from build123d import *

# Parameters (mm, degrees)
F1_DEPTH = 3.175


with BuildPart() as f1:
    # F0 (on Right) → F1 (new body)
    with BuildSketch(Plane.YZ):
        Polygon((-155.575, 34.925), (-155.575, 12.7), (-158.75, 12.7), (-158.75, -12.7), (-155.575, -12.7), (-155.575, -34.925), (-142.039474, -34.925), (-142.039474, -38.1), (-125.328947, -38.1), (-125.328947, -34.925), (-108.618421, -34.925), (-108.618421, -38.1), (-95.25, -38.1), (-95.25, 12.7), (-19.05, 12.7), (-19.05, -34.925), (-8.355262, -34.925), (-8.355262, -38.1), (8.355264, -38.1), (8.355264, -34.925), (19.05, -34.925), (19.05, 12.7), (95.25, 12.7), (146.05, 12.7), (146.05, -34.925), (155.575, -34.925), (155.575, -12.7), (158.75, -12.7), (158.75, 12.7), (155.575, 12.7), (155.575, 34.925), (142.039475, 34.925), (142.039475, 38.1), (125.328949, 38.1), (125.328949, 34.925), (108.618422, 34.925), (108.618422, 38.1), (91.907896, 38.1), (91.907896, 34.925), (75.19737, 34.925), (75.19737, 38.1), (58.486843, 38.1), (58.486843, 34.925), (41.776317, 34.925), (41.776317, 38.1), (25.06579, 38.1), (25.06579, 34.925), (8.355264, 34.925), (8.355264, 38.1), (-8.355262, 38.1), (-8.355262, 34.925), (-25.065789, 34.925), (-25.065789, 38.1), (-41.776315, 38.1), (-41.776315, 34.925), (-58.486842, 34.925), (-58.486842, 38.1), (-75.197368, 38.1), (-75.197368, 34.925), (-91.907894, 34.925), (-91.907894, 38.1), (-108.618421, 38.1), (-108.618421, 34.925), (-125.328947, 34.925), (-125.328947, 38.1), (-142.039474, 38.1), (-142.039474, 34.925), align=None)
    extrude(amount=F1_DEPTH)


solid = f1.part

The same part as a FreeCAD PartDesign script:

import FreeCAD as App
import Part
import Sketcher

V = App.Vector
Q = App.Units.Quantity


def add_polygon(sketch, points):
    """Adds a closed chain of lines whose ends are joined by coincident constraints."""
    first, n = sketch.GeometryCount, len(points)
    for a, b in zip(points, points[1:] + points[:1]):
        sketch.addGeometry(Part.LineSegment(App.Vector(*a, 0), App.Vector(*b, 0)), False)
    for i in range(n):
        sketch.addConstraint(Sketcher.Constraint("Coincident", first + i, 2, first + (i + 1) % n, 1))

doc = App.newDocument("Part")
body = doc.addObject("PartDesign::Body", "Body")

# Sketch on YZ plane
sketch1 = body.newObject("Sketcher::SketchObject", "Sketch")
sketch1.AttachmentSupport = (doc.getObject("YZ_Plane"), [""])
sketch1.MapMode = "FlatFace"
add_polygon(sketch1, [(-155.575, 34.925), (-155.575, 12.7), (-158.75, 12.7), (-158.75, -12.7), (-155.575, -12.7), (-155.575, -34.925), (-142.039474, -34.925), (-142.039474, -38.1), (-125.328947, -38.1), (-125.328947, -34.925), (-108.618421, -34.925), (-108.618421, -38.1), (-95.25, -38.1), (-95.25, 12.7), (-19.05, 12.7), (-19.05, -34.925), (-8.355262, -34.925), (-8.355262, -38.1), (8.355264, -38.1), (8.355264, -34.925), (19.05, -34.925), (19.05, 12.7), (146.05, 12.7), (146.05, -34.925), (155.575, -34.925), (155.575, -12.7), (158.75, -12.7), (158.75, 12.7), (155.575, 12.7), (155.575, 34.925), (142.039475, 34.925), (142.039475, 38.1), (125.328949, 38.1), (125.328949, 34.925), (108.618422, 34.925), (108.618422, 38.1), (91.907896, 38.1), (91.907896, 34.925), (75.19737, 34.925), (75.19737, 38.1), (58.486843, 38.1), (58.486843, 34.925), (41.776317, 34.925), (41.776317, 38.1), (25.06579, 38.1), (25.06579, 34.925), (8.355264, 34.925), (8.355264, 38.1), (-8.355262, 38.1), (-8.355262, 34.925), (-25.065789, 34.925), (-25.065789, 38.1), (-41.776315, 38.1), (-41.776315, 34.925), (-58.486842, 34.925), (-58.486842, 38.1), (-75.197368, 38.1), (-75.197368, 34.925), (-91.907894, 34.925), (-91.907894, 38.1), (-108.618421, 38.1), (-108.618421, 34.925), (-125.328947, 34.925), (-125.328947, 38.1), (-142.039474, 38.1), (-142.039474, 34.925)])  # lines 0-65
sketch1.addConstraint(Sketcher.Constraint("Vertical", 0))
sketch1.addConstraint(Sketcher.Constraint("Horizontal", 1))
sketch1.addConstraint(Sketcher.Constraint("Vertical", 2))
sketch1.addConstraint(Sketcher.Constraint("Horizontal", 3))
sketch1.addConstraint(Sketcher.Constraint("Vertical", 4))
sketch1.addConstraint(Sketcher.Constraint("Horizontal", 5))
sketch1.addConstraint(Sketcher.Constraint("Vertical", 6))
sketch1.addConstraint(Sketcher.Constraint("Horizontal", 7))
sketch1.addConstraint(Sketcher.Constraint("Vertical", 8))
sketch1.addConstraint(Sketcher.Constraint("Horizontal", 9))
sketch1.addConstraint(Sketcher.Constraint("Vertical", 10))
sketch1.addConstraint(Sketcher.Constraint("Horizontal", 11))
sketch1.addConstraint(Sketcher.Constraint("Vertical", 12))
sketch1.addConstraint(Sketcher.Constraint("Horizontal", 13))
sketch1.addConstraint(Sketcher.Constraint("Vertical", 14))
sketch1.addConstraint(Sketcher.Constraint("Horizontal", 15))
sketch1.addConstraint(Sketcher.Constraint("Vertical", 16))
sketch1.addConstraint(Sketcher.Constraint("Horizontal", 17))
sketch1.addConstraint(Sketcher.Constraint("Vertical", 18))
sketch1.addConstraint(Sketcher.Constraint("Horizontal", 19))
sketch1.addConstraint(Sketcher.Constraint("Vertical", 20))
sketch1.addConstraint(Sketcher.Constraint("Horizontal", 21))
sketch1.addConstraint(Sketcher.Constraint("Vertical", 22))
sketch1.addConstraint(Sketcher.Constraint("Horizontal", 23))
sketch1.addConstraint(Sketcher.Constraint("Vertical", 24))
sketch1.addConstraint(Sketcher.Constraint("Horizontal", 25))
sketch1.addConstraint(Sketcher.Constraint("Vertical", 26))
sketch1.addConstraint(Sketcher.Constraint("Horizontal", 27))
sketch1.addConstraint(Sketcher.Constraint("Vertical", 28))
sketch1.addConstraint(Sketcher.Constraint("Horizontal", 29))
sketch1.addConstraint(Sketcher.Constraint("Vertical", 30))
sketch1.addConstraint(Sketcher.Constraint("Horizontal", 31))
sketch1.addConstraint(Sketcher.Constraint("Vertical", 32))
sketch1.addConstraint(Sketcher.Constraint("Horizontal", 33))
sketch1.addConstraint(Sketcher.Constraint("Vertical", 34))
sketch1.addConstraint(Sketcher.Constraint("Horizontal", 35))
sketch1.addConstraint(Sketcher.Constraint("Vertical", 36))
sketch1.addConstraint(Sketcher.Constraint("Horizontal", 37))
sketch1.addConstraint(Sketcher.Constraint("Vertical", 38))
sketch1.addConstraint(Sketcher.Constraint("Horizontal", 39))
sketch1.addConstraint(Sketcher.Constraint("Vertical", 40))
sketch1.addConstraint(Sketcher.Constraint("Horizontal", 41))
sketch1.addConstraint(Sketcher.Constraint("Vertical", 42))
sketch1.addConstraint(Sketcher.Constraint("Horizontal", 43))
sketch1.addConstraint(Sketcher.Constraint("Vertical", 44))
sketch1.addConstraint(Sketcher.Constraint("Horizontal", 45))
sketch1.addConstraint(Sketcher.Constraint("Vertical", 46))
sketch1.addConstraint(Sketcher.Constraint("Horizontal", 47))
sketch1.addConstraint(Sketcher.Constraint("Vertical", 48))
sketch1.addConstraint(Sketcher.Constraint("Horizontal", 49))
sketch1.addConstraint(Sketcher.Constraint("Vertical", 50))
sketch1.addConstraint(Sketcher.Constraint("Horizontal", 51))
sketch1.addConstraint(Sketcher.Constraint("Vertical", 52))
sketch1.addConstraint(Sketcher.Constraint("Horizontal", 53))
sketch1.addConstraint(Sketcher.Constraint("Vertical", 54))
sketch1.addConstraint(Sketcher.Constraint("Horizontal", 55))
sketch1.addConstraint(Sketcher.Constraint("Vertical", 56))
sketch1.addConstraint(Sketcher.Constraint("Horizontal", 57))
sketch1.addConstraint(Sketcher.Constraint("Vertical", 58))
sketch1.addConstraint(Sketcher.Constraint("Horizontal", 59))
sketch1.addConstraint(Sketcher.Constraint("Vertical", 60))
sketch1.addConstraint(Sketcher.Constraint("Horizontal", 61))
sketch1.addConstraint(Sketcher.Constraint("Vertical", 62))
sketch1.addConstraint(Sketcher.Constraint("Horizontal", 63))
sketch1.addConstraint(Sketcher.Constraint("Vertical", 64))
sketch1.addConstraint(Sketcher.Constraint("Horizontal", 65))
sketch1.addConstraint(Sketcher.Constraint("Symmetric", 0, 2, 24, 2, -1, 1))
sketch1.addConstraint(Sketcher.Constraint("Symmetric", 2, 2, 26, 2, -1, 1))
sketch1.addConstraint(Sketcher.Constraint("Symmetric", 4, 2, 28, 2, -1, 1))
sketch1.addConstraint(Sketcher.Constraint("Symmetric", 6, 2, 30, 2, -1, 1))
sketch1.addConstraint(Sketcher.Constraint("Symmetric", 8, 2, 32, 2, -1, 1))
sketch1.addConstraint(Sketcher.Constraint("Symmetric", 10, 2, 34, 2, -1, 1))
sketch1.addConstraint(Sketcher.Constraint("Symmetric", 15, 2, 45, 2, -1, 1))
sketch1.addConstraint(Sketcher.Constraint("Symmetric", 17, 2, 47, 2, -1, 1))
sketch1.addConstraint(Sketcher.Constraint("Symmetric", 15, 2, 18, 2, -2))
sketch1.addConstraint(Sketcher.Constraint("Symmetric", 13, 2, 20, 2, -2))
sketch1.addConstraint(Sketcher.Constraint("Symmetric", 4, 2, 23, 2, -2))
sketch1.addConstraint(Sketcher.Constraint("Symmetric", 44, 2, 49, 2, -2))
sketch1.addConstraint(Sketcher.Constraint("Symmetric", 42, 2, 51, 2, -2))
sketch1.addConstraint(Sketcher.Constraint("Symmetric", 40, 2, 53, 2, -2))
sketch1.addConstraint(Sketcher.Constraint("Symmetric", 38, 2, 55, 2, -2))
sketch1.addConstraint(Sketcher.Constraint("Symmetric", 36, 2, 57, 2, -2))
sketch1.addConstraint(Sketcher.Constraint("Symmetric", 34, 2, 59, 2, -2))
sketch1.addConstraint(Sketcher.Constraint("Symmetric", 32, 2, 61, 2, -2))
sketch1.addConstraint(Sketcher.Constraint("Symmetric", 30, 2, 63, 2, -2))
sketch1.addConstraint(Sketcher.Constraint("Horizontal", 5, 2, 8, 2))
sketch1.addConstraint(Sketcher.Constraint("Horizontal", 7, 2, 10, 2))
sketch1.addConstraint(Sketcher.Constraint("Horizontal", 1, 2, 12, 2))
sketch1.addConstraint(Sketcher.Constraint("Horizontal", 9, 2, 14, 2))
sketch1.addConstraint(Sketcher.Constraint("Horizontal", 11, 2, 16, 2))
sketch1.addConstraint(Sketcher.Constraint("Horizontal", 3, 2, 24, 2))
sketch1.addConstraint(Sketcher.Constraint("Horizontal", 33, 2, 36, 2))
sketch1.addConstraint(Sketcher.Constraint("Horizontal", 35, 2, 38, 2))
sketch1.addConstraint(Sketcher.Constraint("Horizontal", 37, 2, 40, 2))
sketch1.addConstraint(Sketcher.Constraint("Horizontal", 39, 2, 42, 2))
sketch1.addConstraint(Sketcher.Constraint("Horizontal", 61, 2, 64, 2))
sketch1.addConstraint(Sketcher.Constraint("Equal", 7, 9))
sketch1.addConstraint(Sketcher.Constraint("Equal", 9, 17))
sketch1.addConstraint(Sketcher.Constraint("Equal", 33, 35))
sketch1.addConstraint(Sketcher.Constraint("Equal", 35, 37))
sketch1.addConstraint(Sketcher.Constraint("Equal", 37, 39))
sketch1.addConstraint(Sketcher.Constraint("Equal", 39, 41))
sketch1.addConstraint(Sketcher.Constraint("Equal", 41, 43))
sketch1.addConstraint(Sketcher.Constraint("Equal", 43, 45))
sketch1.addConstraint(Sketcher.Constraint("Equal", 27, 6))
sketch1.addConstraint(Sketcher.Constraint("DistanceX", 13, 1, 13, 2, Q("3 in")))
sketch1.addConstraint(Sketcher.Constraint("DistanceX", 21, 1, 21, 2, Q("5 in")))
sketch1.addConstraint(Sketcher.Constraint("DistanceY", 2, 2, 2, 1, Q("1 in")))
sketch1.addConstraint(Sketcher.Constraint("DistanceY", 12, 1, 12, 2, Q("2 in")))
sketch1.addConstraint(Sketcher.Constraint("DistanceX", 1, 2, 1, 1, Q("0.125 in")))
sketch1.addConstraint(Sketcher.Constraint("DistanceX", 23, 1, 23, 2, Q("0.375 in")))
sketch1.addConstraint(Sketcher.Constraint("DistanceX", 1, 2, -1, 1, Q("6.25 in")))
sketch1.addConstraint(Sketcher.Constraint("DistanceX", 11, 1, 11, 2, Q("13.368421 mm")))
pad1 = body.newObject("PartDesign::Pad", "Pad")
pad1.Profile = sketch1
pad1.Length = Q("0.125 in")

doc.recompute()
